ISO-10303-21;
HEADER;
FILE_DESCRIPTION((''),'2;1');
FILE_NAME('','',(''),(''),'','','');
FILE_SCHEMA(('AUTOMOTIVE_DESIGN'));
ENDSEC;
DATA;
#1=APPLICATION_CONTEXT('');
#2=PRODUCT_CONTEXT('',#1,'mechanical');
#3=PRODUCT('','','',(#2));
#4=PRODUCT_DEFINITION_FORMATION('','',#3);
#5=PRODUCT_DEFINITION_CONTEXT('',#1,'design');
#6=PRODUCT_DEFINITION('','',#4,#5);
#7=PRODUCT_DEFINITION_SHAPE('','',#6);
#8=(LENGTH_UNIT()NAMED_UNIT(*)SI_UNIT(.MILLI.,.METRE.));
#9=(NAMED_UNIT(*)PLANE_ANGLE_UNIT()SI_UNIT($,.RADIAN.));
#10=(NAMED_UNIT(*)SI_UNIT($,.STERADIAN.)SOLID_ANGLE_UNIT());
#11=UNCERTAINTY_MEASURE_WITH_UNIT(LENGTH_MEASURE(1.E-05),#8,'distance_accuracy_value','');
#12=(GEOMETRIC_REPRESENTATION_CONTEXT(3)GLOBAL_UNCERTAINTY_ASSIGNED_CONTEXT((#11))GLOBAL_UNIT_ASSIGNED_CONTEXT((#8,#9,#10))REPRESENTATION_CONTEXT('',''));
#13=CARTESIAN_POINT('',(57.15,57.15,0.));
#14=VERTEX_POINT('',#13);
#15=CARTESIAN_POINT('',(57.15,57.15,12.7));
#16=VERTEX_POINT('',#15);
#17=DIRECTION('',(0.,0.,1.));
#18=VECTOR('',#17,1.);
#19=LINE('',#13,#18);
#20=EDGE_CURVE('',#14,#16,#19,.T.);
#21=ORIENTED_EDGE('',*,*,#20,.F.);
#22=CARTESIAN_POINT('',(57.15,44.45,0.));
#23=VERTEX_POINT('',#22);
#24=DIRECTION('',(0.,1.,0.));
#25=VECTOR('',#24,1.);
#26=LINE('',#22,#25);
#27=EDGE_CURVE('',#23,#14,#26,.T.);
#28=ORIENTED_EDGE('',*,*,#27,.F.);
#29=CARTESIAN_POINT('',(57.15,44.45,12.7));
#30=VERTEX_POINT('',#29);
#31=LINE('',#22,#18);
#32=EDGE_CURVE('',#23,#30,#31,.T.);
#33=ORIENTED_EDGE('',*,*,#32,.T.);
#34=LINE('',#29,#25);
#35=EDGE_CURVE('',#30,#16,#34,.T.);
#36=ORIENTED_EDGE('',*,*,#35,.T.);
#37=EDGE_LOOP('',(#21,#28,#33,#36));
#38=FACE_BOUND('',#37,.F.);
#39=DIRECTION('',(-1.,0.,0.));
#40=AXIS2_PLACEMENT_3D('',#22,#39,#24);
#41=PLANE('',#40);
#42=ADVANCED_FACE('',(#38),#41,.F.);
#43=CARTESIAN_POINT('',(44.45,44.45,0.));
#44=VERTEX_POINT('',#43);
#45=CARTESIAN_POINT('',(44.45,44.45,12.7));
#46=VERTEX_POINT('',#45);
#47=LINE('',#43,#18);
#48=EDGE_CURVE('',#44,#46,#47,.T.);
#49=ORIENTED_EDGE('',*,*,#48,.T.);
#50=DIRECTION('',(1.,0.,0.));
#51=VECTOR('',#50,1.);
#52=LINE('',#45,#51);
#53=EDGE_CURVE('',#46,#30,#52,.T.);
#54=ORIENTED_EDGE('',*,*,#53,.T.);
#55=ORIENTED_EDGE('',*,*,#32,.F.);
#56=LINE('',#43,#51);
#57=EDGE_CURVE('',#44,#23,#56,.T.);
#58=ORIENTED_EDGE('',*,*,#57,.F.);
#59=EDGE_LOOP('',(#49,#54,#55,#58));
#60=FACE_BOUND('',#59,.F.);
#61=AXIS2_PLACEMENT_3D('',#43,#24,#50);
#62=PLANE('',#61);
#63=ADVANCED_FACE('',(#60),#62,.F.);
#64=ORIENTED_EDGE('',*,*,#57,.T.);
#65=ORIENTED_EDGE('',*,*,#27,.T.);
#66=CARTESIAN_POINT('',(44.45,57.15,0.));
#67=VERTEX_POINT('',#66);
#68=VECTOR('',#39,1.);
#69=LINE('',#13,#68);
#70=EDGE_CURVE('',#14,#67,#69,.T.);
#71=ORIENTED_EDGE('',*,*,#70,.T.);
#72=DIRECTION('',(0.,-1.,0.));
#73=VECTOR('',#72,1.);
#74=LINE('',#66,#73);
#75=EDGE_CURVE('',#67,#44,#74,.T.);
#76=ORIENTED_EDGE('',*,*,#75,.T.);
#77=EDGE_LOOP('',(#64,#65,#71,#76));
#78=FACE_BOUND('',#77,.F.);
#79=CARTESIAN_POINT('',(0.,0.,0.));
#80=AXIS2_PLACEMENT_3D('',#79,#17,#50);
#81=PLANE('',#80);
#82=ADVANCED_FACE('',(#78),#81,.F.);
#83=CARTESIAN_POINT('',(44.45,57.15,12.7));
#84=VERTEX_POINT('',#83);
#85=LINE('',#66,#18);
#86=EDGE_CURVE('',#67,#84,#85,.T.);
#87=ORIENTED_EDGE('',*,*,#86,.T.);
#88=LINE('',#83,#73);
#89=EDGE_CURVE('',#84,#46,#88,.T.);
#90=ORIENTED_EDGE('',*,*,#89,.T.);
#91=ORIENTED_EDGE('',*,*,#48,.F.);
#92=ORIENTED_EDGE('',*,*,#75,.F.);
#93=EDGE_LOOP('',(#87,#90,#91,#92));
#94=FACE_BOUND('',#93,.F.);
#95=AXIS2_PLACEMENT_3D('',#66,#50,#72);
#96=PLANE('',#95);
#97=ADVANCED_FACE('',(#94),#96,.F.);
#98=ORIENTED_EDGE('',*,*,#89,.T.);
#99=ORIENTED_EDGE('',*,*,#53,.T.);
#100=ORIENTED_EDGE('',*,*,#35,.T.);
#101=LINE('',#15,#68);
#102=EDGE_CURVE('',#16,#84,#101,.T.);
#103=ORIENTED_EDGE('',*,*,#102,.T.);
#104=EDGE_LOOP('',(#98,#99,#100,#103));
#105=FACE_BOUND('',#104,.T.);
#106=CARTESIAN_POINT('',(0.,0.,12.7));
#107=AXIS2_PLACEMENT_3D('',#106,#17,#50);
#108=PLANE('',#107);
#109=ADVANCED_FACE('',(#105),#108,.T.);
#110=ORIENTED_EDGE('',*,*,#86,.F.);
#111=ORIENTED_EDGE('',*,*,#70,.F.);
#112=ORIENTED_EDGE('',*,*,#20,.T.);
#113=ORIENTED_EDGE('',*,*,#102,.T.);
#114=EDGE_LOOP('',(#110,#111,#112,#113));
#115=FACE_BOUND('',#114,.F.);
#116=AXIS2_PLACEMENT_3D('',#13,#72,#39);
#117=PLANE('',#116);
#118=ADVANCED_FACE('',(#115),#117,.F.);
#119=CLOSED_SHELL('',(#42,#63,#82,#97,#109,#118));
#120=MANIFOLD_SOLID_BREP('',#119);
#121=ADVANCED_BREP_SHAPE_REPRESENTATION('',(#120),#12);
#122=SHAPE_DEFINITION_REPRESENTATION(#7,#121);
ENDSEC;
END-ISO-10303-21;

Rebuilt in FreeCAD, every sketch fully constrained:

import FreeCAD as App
import Part
import Sketcher

V = App.Vector
Q = App.Units.Quantity


def add_polygon(sketch, points):
    """Adds a closed chain of lines whose ends are joined by coincident constraints."""
    first, n = sketch.GeometryCount, len(points)
    for a, b in zip(points, points[1:] + points[:1]):
        sketch.addGeometry(Part.LineSegment(App.Vector(*a, 0), App.Vector(*b, 0)), False)
    for i in range(n):
        sketch.addConstraint(Sketcher.Constraint("Coincident", first + i, 2, first + (i + 1) % n, 1))

doc = App.newDocument("Part")
params = doc.addObject("Spreadsheet::Sheet", "Params")
for row, (alias, value) in enumerate([
    ("sketch1_width", "0.5 in"),
    ("pad1_length", "0.5 in"),
], start=1):
    params.set(f"A{row}", alias)
    params.set(f"B{row}", "=" + value)
    params.setAlias(f"B{row}", alias)

body = doc.addObject("PartDesign::Body", "Body")

sketch1 = doc.addObject("Sketcher::SketchObject", "Sketch")
body.addObject(sketch1)
sketch1.AttachmentSupport = (doc.XY_Plane, [""])
sketch1.MapMode = "FlatFace"
add_polygon(sketch1, [(57, 44), (57, 57), (44, 57), (44, 44)])
sketch1.addConstraint([
    Sketcher.Constraint("Vertical", 0),
    Sketcher.Constraint("Horizontal", 1),
    Sketcher.Constraint("Vertical", 2),
    Sketcher.Constraint("Horizontal", 3),
    Sketcher.Constraint("Equal", 3, 0),
    Sketcher.Constraint("DistanceX", 1, 2, 1, 1, Q("0.5 in")),
    Sketcher.Constraint("DistanceX", -1, 1, 0, 2, Q("2.25 in")),
    Sketcher.Constraint("DistanceY", -1, 1, 0, 2, Q("2.25 in")),
])
sketch1.setExpression("Constraints[9]", "Params.sketch1_width")
pad1 = doc.addObject("PartDesign::Pad", "Pad")
body.addObject(pad1)
pad1.Profile = sketch1
pad1.setExpression("Length", "Params.pad1_length")

doc.recompute()
